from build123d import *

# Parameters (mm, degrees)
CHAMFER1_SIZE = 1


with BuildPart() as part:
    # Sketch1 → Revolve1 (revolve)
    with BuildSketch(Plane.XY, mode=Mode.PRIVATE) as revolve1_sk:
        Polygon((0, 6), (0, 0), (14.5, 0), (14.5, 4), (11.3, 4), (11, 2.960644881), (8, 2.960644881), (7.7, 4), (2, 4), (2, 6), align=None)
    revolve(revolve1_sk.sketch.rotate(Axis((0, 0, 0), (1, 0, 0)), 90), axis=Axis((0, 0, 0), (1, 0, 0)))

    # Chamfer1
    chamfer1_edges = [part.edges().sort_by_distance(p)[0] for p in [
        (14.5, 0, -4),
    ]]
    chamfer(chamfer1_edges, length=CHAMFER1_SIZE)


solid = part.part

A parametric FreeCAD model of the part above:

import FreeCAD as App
import Part
import Sketcher


def edges_at(feature, points):
    """Names of the edges that pass closest to the given points."""
    edges = feature.Shape.Edges
    near = lambda p: min(range(len(edges)), key=lambda i: edges[i].distToShape(Part.Vertex(*p))[0])
    return sorted({f"Edge{near(p) + 1}" for p in points})


def add_polygon(sketch, points):
    """Adds a closed chain of lines whose ends are joined by coincident constraints."""
    first, n = sketch.GeometryCount, len(points)
    for a, b in zip(points, points[1:] + points[:1]):
        sketch.addGeometry(Part.LineSegment(App.Vector(*a, 0), App.Vector(*b, 0)), False)
    for i in range(n):
        sketch.addConstraint(Sketcher.Constraint("Coincident", first + i, 2, first + (i + 1) % n, 1))

doc = App.newDocument("Part")
body = doc.addObject("PartDesign::Body", "Body")

sketch1 = body.newObject("Sketcher::SketchObject", "Sketch")
sketch1.AttachmentSupport = (doc.getObject("XY_Plane"), [""])
sketch1.MapMode = "FlatFace"
add_polygon(sketch1, [(0, 6), (0, 0), (14.5, 0), (14.5, 4), (11.3, 4), (11, 2.960645), (8, 2.960645), (7.7, 4), (2, 4), (2, 6)])
sketch1.addConstraint(Sketcher.Constraint("Vertical", 0))
sketch1.addConstraint(Sketcher.Constraint("Horizontal", 1))
sketch1.addConstraint(Sketcher.Constraint("Vertical", 2))
sketch1.addConstraint(Sketcher.Constraint("Horizontal", 3))
sketch1.addConstraint(Sketcher.Constraint("Horizontal", 5))
sketch1.addConstraint(Sketcher.Constraint("Horizontal", 7))
sketch1.addConstraint(Sketcher.Constraint("Vertical", 8))
sketch1.addConstraint(Sketcher.Constraint("Horizontal", 9))
sketch1.addConstraint(Sketcher.Constraint("Coincident", 0, 2, -1, 1))
sketch1.addConstraint(Sketcher.Constraint("Horizontal", 3, 2, 6, 2))
sketch1.addConstraint(Sketcher.Constraint("Equal", 9, 8))
sketch1.addConstraint(Sketcher.Constraint("Equal", 4, 6))
sketch1.addConstraint(Sketcher.Constraint("DistanceX", 5, 2, 5, 1, 3.0))
sketch1.addConstraint(Sketcher.Constraint("DistanceX", 9, 2, 9, 1, 2.0))
sketch1.addConstraint(Sketcher.Constraint("DistanceY", 0, 2, 0, 1, 6.0))
sketch1.addConstraint(Sketcher.Constraint("DistanceX", 1, 1, 1, 2, 14.5))
sketch1.addConstraint(Sketcher.Constraint("DistanceX", 3, 2, 3, 1, 3.2))
sketch1.addConstraint(Sketcher.Constraint("DistanceX", 7, 2, 7, 1, 5.7))
sketch1.addConstraint(Sketcher.Constraint("Distance", 4, 1.081785))
revolution = body.newObject("PartDesign::Revolution", "Revolution")
revolution.Profile = sketch1
revolution.ReferenceAxis = (sketch1, ["H_Axis"])
revolution.Angle = 360
doc.recompute()

chamfer = body.newObject("PartDesign::Chamfer", "Chamfer")
chamfer.Base = (revolution, edges_at(revolution, [(14.5, 0, -4)]))
chamfer.Size = 1

doc.recompute()
